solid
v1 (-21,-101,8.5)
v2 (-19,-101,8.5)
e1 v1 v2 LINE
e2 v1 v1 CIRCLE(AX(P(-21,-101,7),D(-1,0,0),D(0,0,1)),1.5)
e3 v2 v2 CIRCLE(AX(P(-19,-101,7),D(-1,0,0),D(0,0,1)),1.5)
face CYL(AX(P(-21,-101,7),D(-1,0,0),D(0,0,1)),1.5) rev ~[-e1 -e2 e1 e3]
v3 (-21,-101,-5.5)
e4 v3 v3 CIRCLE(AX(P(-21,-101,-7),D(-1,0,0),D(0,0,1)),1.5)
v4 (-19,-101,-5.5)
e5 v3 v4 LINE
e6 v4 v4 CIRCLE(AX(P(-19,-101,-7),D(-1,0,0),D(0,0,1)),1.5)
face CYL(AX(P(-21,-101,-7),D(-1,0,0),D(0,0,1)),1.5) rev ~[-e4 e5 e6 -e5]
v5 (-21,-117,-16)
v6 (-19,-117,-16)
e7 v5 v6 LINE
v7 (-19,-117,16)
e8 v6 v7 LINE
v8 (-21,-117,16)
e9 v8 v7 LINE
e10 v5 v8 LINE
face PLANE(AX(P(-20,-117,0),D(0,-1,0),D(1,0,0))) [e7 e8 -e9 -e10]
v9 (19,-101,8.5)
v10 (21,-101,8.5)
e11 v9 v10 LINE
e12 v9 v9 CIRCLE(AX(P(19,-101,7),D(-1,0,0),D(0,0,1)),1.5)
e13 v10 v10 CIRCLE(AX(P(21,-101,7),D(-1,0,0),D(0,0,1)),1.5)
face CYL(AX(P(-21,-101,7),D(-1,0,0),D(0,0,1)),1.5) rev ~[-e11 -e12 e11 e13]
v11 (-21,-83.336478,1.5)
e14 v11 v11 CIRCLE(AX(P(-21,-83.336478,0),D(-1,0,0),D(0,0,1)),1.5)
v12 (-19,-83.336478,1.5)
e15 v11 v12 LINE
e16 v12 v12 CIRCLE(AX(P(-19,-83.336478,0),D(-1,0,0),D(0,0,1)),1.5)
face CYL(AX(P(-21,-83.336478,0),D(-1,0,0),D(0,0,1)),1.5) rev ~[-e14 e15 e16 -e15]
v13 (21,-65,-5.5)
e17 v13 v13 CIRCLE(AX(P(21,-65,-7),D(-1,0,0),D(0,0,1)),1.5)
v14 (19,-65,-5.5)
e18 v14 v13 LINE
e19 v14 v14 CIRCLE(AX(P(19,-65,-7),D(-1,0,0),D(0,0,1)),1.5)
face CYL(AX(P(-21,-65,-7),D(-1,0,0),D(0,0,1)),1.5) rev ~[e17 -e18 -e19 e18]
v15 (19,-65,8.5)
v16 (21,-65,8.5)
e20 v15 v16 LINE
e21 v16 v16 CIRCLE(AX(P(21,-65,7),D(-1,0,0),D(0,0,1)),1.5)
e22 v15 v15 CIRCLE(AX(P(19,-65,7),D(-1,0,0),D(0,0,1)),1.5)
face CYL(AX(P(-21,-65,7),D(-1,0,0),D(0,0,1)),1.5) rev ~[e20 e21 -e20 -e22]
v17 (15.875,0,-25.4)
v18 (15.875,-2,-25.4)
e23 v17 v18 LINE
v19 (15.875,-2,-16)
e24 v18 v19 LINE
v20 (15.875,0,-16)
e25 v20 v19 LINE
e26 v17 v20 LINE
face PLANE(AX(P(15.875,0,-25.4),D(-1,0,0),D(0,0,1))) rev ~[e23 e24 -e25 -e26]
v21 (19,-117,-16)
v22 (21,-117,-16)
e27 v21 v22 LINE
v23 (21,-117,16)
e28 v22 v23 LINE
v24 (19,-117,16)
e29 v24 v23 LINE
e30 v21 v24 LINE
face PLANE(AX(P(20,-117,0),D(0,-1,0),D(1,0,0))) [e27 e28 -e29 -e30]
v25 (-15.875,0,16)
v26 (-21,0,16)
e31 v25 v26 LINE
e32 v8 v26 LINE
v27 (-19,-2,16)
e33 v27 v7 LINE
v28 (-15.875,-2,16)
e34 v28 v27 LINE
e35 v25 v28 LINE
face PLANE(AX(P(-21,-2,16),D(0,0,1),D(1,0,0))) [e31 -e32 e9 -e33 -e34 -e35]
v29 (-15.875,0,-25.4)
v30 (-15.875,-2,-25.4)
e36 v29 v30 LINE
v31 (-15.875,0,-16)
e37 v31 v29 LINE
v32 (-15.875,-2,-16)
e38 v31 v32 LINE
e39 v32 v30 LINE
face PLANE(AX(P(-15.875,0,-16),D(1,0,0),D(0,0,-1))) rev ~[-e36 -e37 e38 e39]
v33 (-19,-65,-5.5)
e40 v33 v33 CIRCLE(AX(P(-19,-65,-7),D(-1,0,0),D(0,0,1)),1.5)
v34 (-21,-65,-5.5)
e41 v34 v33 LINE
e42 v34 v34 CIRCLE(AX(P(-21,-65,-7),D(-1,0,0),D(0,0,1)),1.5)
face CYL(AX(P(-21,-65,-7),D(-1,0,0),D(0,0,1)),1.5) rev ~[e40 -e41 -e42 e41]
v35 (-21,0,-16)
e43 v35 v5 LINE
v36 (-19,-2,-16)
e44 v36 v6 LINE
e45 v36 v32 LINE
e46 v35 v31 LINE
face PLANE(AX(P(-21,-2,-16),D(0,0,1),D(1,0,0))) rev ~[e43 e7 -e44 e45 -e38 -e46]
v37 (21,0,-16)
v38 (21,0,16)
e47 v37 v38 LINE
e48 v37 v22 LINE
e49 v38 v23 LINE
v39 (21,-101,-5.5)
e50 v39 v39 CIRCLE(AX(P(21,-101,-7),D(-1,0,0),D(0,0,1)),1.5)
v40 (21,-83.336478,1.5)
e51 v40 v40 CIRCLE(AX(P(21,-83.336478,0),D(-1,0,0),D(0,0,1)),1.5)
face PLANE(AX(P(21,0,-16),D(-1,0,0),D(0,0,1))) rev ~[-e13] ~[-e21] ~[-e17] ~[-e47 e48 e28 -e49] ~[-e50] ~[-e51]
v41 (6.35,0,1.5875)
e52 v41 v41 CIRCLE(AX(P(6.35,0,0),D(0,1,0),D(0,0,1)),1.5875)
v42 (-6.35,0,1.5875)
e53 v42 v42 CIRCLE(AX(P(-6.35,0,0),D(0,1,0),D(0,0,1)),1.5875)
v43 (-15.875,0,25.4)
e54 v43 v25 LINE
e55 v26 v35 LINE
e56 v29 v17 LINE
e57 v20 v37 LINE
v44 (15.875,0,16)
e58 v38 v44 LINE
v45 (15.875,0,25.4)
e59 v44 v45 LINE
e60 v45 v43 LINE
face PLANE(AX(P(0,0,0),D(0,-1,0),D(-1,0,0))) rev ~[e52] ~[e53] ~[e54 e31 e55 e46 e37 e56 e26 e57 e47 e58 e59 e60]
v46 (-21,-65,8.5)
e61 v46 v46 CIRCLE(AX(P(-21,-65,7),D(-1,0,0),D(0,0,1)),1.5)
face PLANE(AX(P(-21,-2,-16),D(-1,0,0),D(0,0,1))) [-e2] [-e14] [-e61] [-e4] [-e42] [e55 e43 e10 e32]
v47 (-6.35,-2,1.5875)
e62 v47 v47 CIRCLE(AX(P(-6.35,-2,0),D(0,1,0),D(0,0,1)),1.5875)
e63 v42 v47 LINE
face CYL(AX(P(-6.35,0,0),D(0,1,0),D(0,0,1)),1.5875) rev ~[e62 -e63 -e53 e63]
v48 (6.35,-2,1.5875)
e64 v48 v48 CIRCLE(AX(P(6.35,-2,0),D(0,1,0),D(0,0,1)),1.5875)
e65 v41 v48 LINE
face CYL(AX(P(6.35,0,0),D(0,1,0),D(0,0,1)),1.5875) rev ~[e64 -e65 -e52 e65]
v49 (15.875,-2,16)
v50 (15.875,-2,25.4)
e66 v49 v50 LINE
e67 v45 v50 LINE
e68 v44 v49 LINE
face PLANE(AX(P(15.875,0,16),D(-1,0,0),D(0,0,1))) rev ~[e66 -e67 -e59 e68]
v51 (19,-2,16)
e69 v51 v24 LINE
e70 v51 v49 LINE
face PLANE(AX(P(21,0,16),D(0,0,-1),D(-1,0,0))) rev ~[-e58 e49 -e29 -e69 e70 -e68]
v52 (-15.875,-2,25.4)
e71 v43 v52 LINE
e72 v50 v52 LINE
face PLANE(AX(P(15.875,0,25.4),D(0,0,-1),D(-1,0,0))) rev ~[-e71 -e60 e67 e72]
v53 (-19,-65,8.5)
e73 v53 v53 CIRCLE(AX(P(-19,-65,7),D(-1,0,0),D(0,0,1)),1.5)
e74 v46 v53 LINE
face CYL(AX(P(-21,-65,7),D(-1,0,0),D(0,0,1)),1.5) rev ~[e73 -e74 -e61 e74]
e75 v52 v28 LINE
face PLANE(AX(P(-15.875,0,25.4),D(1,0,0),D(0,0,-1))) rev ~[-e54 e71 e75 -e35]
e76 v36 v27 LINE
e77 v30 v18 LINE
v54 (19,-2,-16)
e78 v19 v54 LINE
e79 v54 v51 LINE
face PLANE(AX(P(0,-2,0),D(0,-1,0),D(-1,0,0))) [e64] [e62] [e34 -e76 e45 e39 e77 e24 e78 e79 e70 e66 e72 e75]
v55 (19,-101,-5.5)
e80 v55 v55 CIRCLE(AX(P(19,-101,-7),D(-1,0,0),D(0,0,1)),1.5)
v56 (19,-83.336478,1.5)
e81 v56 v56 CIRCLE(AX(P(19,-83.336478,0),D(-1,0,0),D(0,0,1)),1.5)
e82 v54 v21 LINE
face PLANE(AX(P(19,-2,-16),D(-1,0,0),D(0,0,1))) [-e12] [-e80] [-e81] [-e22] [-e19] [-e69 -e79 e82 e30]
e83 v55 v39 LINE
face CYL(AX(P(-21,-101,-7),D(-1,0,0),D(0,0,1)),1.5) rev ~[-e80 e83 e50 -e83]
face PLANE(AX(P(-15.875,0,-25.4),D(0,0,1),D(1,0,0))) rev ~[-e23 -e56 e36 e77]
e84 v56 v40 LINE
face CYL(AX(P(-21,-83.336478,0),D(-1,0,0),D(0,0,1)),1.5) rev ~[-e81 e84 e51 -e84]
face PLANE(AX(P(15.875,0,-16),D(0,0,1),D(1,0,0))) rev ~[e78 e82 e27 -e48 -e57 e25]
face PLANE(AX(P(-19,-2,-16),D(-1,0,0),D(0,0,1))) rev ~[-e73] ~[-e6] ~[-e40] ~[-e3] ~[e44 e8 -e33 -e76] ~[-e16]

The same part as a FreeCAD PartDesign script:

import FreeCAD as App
import Part
import Sketcher
Q = App.Units.Quantity

doc = App.newDocument("Part")
body = doc.addObject("PartDesign::Body", "Body")

# Sketch on XZ plane
sketch1 = doc.addObject("Sketcher::SketchObject", "Sketch")
body.addObject(sketch1)
sketch1.AttachmentSupport = (doc.XZ_Plane, [""])
sketch1.MapMode = "FlatFace"
sketch1.addGeometry([
    Part.LineSegment(App.Vector(-15.875, -16, 0), App.Vector(-21, -16, 0)),  # 0
    Part.LineSegment(App.Vector(-21, -16, 0), App.Vector(-21, 16, 0)),  # 1
    Part.LineSegment(App.Vector(-21, 16, 0), App.Vector(-15.875, 16, 0)),  # 2
    Part.LineSegment(App.Vector(-15.875, 16, 0), App.Vector(-15.875, 25.4, 0)),  # 3
    Part.LineSegment(App.Vector(-15.875, 25.4, 0), App.Vector(15.875, 25.4, 0)),  # 4
    Part.LineSegment(App.Vector(15.875, 25.4, 0), App.Vector(15.875, 16, 0)),  # 5
    Part.LineSegment(App.Vector(15.875, 16, 0), App.Vector(21, 16, 0)),  # 6
    Part.LineSegment(App.Vector(21, 16, 0), App.Vector(21, -16, 0)),  # 7
    Part.LineSegment(App.Vector(21, -16, 0), App.Vector(15.875, -16, 0)),  # 8
    Part.LineSegment(App.Vector(15.875, -16, 0), App.Vector(15.875, -25.4, 0)),  # 9
    Part.LineSegment(App.Vector(15.875, -25.4, 0), App.Vector(-15.875, -25.4, 0)),  # 10
    Part.LineSegment(App.Vector(-15.875, -25.4, 0), App.Vector(-15.875, -16, 0)),  # 11
], False)
sketch1.addConstraint([
    Sketcher.Constraint("Coincident", 0, 2, 1, 1),
    Sketcher.Constraint("Coincident", 1, 2, 2, 1),
    Sketcher.Constraint("Coincident", 2, 2, 3, 1),
    Sketcher.Constraint("Coincident", 3, 2, 4, 1),
    Sketcher.Constraint("Coincident", 4, 2, 5, 1),
    Sketcher.Constraint("Coincident", 5, 2, 6, 1),
    Sketcher.Constraint("Coincident", 6, 2, 7, 1),
    Sketcher.Constraint("Coincident", 7, 2, 8, 1),
    Sketcher.Constraint("Coincident", 8, 2, 9, 1),
    Sketcher.Constraint("Coincident", 9, 2, 10, 1),
    Sketcher.Constraint("Coincident", 10, 2, 11, 1),
    Sketcher.Constraint("Coincident", 11, 2, 0, 1),
    Sketcher.Constraint("Horizontal", 0),
    Sketcher.Constraint("Vertical", 1),
    Sketcher.Constraint("Horizontal", 2),
    Sketcher.Constraint("Vertical", 3),
    Sketcher.Constraint("Horizontal", 4),
    Sketcher.Constraint("Vertical", 5),
    Sketcher.Constraint("Horizontal", 6),
    Sketcher.Constraint("Vertical", 7),
    Sketcher.Constraint("Horizontal", 8),
    Sketcher.Constraint("Vertical", 9),
    Sketcher.Constraint("Horizontal", 10),
    Sketcher.Constraint("Vertical", 11),
    Sketcher.Constraint("Symmetric", 0, 2, 6, 2, -1, 1),
    Sketcher.Constraint("Symmetric", 2, 2, 8, 2, -1, 1),
    Sketcher.Constraint("Symmetric", 4, 2, 10, 2, -1, 1),
    Sketcher.Constraint("Symmetric", 2, 2, 5, 2, -2),
    Sketcher.Constraint("DistanceY", 1, 1, 1, 2, Q("32 mm")),
    Sketcher.Constraint("DistanceY", 3, 1, 3, 2, Q("9.4 mm")),
    Sketcher.Constraint("DistanceX", 0, 2, -1, 1, Q("21 mm")),
    Sketcher.Constraint("DistanceX", 4, 1, 4, 2, Q("31.75 mm")),
])
pad1 = doc.addObject("PartDesign::Pad", "Pad")
body.addObject(pad1)
pad1.Profile = sketch1
pad1.Length = 2

# Sketch on XZ plane
sketch2 = doc.addObject("Sketcher::SketchObject", "Sketch001")
body.addObject(sketch2)
sketch2.AttachmentSupport = (doc.XZ_Plane, [""])
sketch2.MapMode = "FlatFace"
sketch2.AttachmentOffset = App.Placement(App.Vector(0, 0, 2), App.Rotation())
sketch2.addGeometry([
    Part.LineSegment(App.Vector(-21, 16, 0), App.Vector(-21, -16, 0)),  # 0
    Part.LineSegment(App.Vector(-21, -16, 0), App.Vector(-19, -16, 0)),  # 1
    Part.LineSegment(App.Vector(-19, -16, 0), App.Vector(-19, 16, 0)),  # 2
    Part.LineSegment(App.Vector(-19, 16, 0), App.Vector(-21, 16, 0)),  # 3
    Part.LineSegment(App.Vector(19, 16, 0), App.Vector(19, -16, 0)),  # 4
    Part.LineSegment(App.Vector(19, -16, 0), App.Vector(21, -16, 0)),  # 5
    Part.LineSegment(App.Vector(21, -16, 0), App.Vector(21, 16, 0)),  # 6
    Part.LineSegment(App.Vector(21, 16, 0), App.Vector(19, 16, 0)),  # 7
], False)
sketch2.addConstraint([
    Sketcher.Constraint("Coincident", 0, 2, 1, 1),
    Sketcher.Constraint("Coincident", 1, 2, 2, 1),
    Sketcher.Constraint("Coincident", 2, 2, 3, 1),
    Sketcher.Constraint("Coincident", 3, 2, 0, 1),
    Sketcher.Constraint("Coincident", 4, 2, 5, 1),
    Sketcher.Constraint("Coincident", 5, 2, 6, 1),
    Sketcher.Constraint("Coincident", 6, 2, 7, 1),
    Sketcher.Constraint("Coincident", 7, 2, 4, 1),
    Sketcher.Constraint("Vertical", 0),
    Sketcher.Constraint("Horizontal", 1),
    Sketcher.Constraint("Vertical", 2),
    Sketcher.Constraint("Horizontal", 3),
    Sketcher.Constraint("Vertical", 4),
    Sketcher.Constraint("Horizontal", 5),
    Sketcher.Constraint("Vertical", 6),
    Sketcher.Constraint("Horizontal", 7),
    Sketcher.Constraint("Symmetric", 2, 2, 4, 2, -1, 1),
    Sketcher.Constraint("Symmetric", 0, 2, 6, 2, -1, 1),
    Sketcher.Constraint("Horizontal", 1, 2, 4, 2),
    Sketcher.Constraint("DistanceX", 1, 1, 1, 2, Q("2 mm")),
    Sketcher.Constraint("DistanceY", 0, 2, 0, 1, Q("32 mm")),
    Sketcher.Constraint("DistanceX", 0, 2, -1, 1, Q("21 mm")),
])
pad2 = doc.addObject("PartDesign::Pad", "Pad001")
body.addObject(pad2)
pad2.Profile = sketch2
pad2.Length = 115

# Sketch on YZ plane
sketch3 = doc.addObject("Sketcher::SketchObject", "Sketch002")
body.addObject(sketch3)
sketch3.AttachmentSupport = (doc.YZ_Plane, [""])
sketch3.MapMode = "FlatFace"
sketch3.AttachmentOffset = App.Placement(App.Vector(0, 0, -21), App.Rotation())
sketch3.addGeometry([
    Part.Circle(App.Vector(-65, -7, 0), App.Vector(0, 0, 1), 1.5),  # 0
    Part.Circle(App.Vector(-65, 7, 0), App.Vector(0, 0, 1), 1.5),  # 1
    Part.Circle(App.Vector(-101, 7, 0), App.Vector(0, 0, 1), 1.5),  # 2
    Part.Circle(App.Vector(-101, -7, 0), App.Vector(0, 0, 1), 1.5),  # 3
    Part.Circle(App.Vector(-83.336478, 0, 0), App.Vector(0, 0, 1), 1.5),  # 4
], False)
sketch3.addConstraint([
    Sketcher.Constraint("Equal", 0, 1),
    Sketcher.Constraint("Equal", 1, 2),
    Sketcher.Constraint("Equal", 2, 3),
    Sketcher.Constraint("Equal", 3, 4),
    Sketcher.Constraint("Symmetric", 0, 3, 1, 3, -1),
    Sketcher.Constraint("Symmetric", 2, 3, 3, 3, -1),
    Sketcher.Constraint("PointOnObject", 4, 3, -1),
    Sketcher.Constraint("Horizontal", 1, 3, 2, 3),
    Sketcher.Constraint("Diameter", 0, Q("3 mm")),
    Sketcher.Constraint("DistanceX", 0, 3, -1, 1, Q("65 mm")),
    Sketcher.Constraint("DistanceY", 0, 3, -1, 1, Q("7 mm")),
    Sketcher.Constraint("DistanceX", 2, 3, -1, 1, Q("101 mm")),
    Sketcher.Constraint("DistanceX", 4, 3, -1, 1, Q("83.336478 mm")),
])
pocket1 = doc.addObject("PartDesign::Pocket", "Pocket")
body.addObject(pocket1)
pocket1.Profile = sketch3
pocket1.Type = "ThroughAll"
pocket1.Reversed = True

# Sketch on XZ plane
sketch4 = doc.addObject("Sketcher::SketchObject", "Sketch003")
body.addObject(sketch4)
sketch4.AttachmentSupport = (doc.XZ_Plane, [""])
sketch4.MapMode = "FlatFace"
sketch4.addGeometry([
    Part.Circle(App.Vector(-6.35, 0, 0), App.Vector(0, 0, 1), 1.5875),
    Part.Circle(App.Vector(6.35, 0, 0), App.Vector(0, 0, 1), 1.5875),
], False)
sketch4.addConstraint([
    Sketcher.Constraint("Equal", 0, 1),
    Sketcher.Constraint("Symmetric", 0, 3, 1, 3, -1, 1),
    Sketcher.Constraint("PointOnObject", 0, 3, -1),
    Sketcher.Constraint("Diameter", 0, Q("3.175 mm")),
    Sketcher.Constraint("DistanceX", 0, 3, 1, 3, Q("12.7 mm")),
])
pocket2 = doc.addObject("PartDesign::Pocket", "Pocket001")
body.addObject(pocket2)
pocket2.Profile = sketch4
pocket2.Type = "ThroughAll"
pocket2.Reversed = True

doc.recompute()
